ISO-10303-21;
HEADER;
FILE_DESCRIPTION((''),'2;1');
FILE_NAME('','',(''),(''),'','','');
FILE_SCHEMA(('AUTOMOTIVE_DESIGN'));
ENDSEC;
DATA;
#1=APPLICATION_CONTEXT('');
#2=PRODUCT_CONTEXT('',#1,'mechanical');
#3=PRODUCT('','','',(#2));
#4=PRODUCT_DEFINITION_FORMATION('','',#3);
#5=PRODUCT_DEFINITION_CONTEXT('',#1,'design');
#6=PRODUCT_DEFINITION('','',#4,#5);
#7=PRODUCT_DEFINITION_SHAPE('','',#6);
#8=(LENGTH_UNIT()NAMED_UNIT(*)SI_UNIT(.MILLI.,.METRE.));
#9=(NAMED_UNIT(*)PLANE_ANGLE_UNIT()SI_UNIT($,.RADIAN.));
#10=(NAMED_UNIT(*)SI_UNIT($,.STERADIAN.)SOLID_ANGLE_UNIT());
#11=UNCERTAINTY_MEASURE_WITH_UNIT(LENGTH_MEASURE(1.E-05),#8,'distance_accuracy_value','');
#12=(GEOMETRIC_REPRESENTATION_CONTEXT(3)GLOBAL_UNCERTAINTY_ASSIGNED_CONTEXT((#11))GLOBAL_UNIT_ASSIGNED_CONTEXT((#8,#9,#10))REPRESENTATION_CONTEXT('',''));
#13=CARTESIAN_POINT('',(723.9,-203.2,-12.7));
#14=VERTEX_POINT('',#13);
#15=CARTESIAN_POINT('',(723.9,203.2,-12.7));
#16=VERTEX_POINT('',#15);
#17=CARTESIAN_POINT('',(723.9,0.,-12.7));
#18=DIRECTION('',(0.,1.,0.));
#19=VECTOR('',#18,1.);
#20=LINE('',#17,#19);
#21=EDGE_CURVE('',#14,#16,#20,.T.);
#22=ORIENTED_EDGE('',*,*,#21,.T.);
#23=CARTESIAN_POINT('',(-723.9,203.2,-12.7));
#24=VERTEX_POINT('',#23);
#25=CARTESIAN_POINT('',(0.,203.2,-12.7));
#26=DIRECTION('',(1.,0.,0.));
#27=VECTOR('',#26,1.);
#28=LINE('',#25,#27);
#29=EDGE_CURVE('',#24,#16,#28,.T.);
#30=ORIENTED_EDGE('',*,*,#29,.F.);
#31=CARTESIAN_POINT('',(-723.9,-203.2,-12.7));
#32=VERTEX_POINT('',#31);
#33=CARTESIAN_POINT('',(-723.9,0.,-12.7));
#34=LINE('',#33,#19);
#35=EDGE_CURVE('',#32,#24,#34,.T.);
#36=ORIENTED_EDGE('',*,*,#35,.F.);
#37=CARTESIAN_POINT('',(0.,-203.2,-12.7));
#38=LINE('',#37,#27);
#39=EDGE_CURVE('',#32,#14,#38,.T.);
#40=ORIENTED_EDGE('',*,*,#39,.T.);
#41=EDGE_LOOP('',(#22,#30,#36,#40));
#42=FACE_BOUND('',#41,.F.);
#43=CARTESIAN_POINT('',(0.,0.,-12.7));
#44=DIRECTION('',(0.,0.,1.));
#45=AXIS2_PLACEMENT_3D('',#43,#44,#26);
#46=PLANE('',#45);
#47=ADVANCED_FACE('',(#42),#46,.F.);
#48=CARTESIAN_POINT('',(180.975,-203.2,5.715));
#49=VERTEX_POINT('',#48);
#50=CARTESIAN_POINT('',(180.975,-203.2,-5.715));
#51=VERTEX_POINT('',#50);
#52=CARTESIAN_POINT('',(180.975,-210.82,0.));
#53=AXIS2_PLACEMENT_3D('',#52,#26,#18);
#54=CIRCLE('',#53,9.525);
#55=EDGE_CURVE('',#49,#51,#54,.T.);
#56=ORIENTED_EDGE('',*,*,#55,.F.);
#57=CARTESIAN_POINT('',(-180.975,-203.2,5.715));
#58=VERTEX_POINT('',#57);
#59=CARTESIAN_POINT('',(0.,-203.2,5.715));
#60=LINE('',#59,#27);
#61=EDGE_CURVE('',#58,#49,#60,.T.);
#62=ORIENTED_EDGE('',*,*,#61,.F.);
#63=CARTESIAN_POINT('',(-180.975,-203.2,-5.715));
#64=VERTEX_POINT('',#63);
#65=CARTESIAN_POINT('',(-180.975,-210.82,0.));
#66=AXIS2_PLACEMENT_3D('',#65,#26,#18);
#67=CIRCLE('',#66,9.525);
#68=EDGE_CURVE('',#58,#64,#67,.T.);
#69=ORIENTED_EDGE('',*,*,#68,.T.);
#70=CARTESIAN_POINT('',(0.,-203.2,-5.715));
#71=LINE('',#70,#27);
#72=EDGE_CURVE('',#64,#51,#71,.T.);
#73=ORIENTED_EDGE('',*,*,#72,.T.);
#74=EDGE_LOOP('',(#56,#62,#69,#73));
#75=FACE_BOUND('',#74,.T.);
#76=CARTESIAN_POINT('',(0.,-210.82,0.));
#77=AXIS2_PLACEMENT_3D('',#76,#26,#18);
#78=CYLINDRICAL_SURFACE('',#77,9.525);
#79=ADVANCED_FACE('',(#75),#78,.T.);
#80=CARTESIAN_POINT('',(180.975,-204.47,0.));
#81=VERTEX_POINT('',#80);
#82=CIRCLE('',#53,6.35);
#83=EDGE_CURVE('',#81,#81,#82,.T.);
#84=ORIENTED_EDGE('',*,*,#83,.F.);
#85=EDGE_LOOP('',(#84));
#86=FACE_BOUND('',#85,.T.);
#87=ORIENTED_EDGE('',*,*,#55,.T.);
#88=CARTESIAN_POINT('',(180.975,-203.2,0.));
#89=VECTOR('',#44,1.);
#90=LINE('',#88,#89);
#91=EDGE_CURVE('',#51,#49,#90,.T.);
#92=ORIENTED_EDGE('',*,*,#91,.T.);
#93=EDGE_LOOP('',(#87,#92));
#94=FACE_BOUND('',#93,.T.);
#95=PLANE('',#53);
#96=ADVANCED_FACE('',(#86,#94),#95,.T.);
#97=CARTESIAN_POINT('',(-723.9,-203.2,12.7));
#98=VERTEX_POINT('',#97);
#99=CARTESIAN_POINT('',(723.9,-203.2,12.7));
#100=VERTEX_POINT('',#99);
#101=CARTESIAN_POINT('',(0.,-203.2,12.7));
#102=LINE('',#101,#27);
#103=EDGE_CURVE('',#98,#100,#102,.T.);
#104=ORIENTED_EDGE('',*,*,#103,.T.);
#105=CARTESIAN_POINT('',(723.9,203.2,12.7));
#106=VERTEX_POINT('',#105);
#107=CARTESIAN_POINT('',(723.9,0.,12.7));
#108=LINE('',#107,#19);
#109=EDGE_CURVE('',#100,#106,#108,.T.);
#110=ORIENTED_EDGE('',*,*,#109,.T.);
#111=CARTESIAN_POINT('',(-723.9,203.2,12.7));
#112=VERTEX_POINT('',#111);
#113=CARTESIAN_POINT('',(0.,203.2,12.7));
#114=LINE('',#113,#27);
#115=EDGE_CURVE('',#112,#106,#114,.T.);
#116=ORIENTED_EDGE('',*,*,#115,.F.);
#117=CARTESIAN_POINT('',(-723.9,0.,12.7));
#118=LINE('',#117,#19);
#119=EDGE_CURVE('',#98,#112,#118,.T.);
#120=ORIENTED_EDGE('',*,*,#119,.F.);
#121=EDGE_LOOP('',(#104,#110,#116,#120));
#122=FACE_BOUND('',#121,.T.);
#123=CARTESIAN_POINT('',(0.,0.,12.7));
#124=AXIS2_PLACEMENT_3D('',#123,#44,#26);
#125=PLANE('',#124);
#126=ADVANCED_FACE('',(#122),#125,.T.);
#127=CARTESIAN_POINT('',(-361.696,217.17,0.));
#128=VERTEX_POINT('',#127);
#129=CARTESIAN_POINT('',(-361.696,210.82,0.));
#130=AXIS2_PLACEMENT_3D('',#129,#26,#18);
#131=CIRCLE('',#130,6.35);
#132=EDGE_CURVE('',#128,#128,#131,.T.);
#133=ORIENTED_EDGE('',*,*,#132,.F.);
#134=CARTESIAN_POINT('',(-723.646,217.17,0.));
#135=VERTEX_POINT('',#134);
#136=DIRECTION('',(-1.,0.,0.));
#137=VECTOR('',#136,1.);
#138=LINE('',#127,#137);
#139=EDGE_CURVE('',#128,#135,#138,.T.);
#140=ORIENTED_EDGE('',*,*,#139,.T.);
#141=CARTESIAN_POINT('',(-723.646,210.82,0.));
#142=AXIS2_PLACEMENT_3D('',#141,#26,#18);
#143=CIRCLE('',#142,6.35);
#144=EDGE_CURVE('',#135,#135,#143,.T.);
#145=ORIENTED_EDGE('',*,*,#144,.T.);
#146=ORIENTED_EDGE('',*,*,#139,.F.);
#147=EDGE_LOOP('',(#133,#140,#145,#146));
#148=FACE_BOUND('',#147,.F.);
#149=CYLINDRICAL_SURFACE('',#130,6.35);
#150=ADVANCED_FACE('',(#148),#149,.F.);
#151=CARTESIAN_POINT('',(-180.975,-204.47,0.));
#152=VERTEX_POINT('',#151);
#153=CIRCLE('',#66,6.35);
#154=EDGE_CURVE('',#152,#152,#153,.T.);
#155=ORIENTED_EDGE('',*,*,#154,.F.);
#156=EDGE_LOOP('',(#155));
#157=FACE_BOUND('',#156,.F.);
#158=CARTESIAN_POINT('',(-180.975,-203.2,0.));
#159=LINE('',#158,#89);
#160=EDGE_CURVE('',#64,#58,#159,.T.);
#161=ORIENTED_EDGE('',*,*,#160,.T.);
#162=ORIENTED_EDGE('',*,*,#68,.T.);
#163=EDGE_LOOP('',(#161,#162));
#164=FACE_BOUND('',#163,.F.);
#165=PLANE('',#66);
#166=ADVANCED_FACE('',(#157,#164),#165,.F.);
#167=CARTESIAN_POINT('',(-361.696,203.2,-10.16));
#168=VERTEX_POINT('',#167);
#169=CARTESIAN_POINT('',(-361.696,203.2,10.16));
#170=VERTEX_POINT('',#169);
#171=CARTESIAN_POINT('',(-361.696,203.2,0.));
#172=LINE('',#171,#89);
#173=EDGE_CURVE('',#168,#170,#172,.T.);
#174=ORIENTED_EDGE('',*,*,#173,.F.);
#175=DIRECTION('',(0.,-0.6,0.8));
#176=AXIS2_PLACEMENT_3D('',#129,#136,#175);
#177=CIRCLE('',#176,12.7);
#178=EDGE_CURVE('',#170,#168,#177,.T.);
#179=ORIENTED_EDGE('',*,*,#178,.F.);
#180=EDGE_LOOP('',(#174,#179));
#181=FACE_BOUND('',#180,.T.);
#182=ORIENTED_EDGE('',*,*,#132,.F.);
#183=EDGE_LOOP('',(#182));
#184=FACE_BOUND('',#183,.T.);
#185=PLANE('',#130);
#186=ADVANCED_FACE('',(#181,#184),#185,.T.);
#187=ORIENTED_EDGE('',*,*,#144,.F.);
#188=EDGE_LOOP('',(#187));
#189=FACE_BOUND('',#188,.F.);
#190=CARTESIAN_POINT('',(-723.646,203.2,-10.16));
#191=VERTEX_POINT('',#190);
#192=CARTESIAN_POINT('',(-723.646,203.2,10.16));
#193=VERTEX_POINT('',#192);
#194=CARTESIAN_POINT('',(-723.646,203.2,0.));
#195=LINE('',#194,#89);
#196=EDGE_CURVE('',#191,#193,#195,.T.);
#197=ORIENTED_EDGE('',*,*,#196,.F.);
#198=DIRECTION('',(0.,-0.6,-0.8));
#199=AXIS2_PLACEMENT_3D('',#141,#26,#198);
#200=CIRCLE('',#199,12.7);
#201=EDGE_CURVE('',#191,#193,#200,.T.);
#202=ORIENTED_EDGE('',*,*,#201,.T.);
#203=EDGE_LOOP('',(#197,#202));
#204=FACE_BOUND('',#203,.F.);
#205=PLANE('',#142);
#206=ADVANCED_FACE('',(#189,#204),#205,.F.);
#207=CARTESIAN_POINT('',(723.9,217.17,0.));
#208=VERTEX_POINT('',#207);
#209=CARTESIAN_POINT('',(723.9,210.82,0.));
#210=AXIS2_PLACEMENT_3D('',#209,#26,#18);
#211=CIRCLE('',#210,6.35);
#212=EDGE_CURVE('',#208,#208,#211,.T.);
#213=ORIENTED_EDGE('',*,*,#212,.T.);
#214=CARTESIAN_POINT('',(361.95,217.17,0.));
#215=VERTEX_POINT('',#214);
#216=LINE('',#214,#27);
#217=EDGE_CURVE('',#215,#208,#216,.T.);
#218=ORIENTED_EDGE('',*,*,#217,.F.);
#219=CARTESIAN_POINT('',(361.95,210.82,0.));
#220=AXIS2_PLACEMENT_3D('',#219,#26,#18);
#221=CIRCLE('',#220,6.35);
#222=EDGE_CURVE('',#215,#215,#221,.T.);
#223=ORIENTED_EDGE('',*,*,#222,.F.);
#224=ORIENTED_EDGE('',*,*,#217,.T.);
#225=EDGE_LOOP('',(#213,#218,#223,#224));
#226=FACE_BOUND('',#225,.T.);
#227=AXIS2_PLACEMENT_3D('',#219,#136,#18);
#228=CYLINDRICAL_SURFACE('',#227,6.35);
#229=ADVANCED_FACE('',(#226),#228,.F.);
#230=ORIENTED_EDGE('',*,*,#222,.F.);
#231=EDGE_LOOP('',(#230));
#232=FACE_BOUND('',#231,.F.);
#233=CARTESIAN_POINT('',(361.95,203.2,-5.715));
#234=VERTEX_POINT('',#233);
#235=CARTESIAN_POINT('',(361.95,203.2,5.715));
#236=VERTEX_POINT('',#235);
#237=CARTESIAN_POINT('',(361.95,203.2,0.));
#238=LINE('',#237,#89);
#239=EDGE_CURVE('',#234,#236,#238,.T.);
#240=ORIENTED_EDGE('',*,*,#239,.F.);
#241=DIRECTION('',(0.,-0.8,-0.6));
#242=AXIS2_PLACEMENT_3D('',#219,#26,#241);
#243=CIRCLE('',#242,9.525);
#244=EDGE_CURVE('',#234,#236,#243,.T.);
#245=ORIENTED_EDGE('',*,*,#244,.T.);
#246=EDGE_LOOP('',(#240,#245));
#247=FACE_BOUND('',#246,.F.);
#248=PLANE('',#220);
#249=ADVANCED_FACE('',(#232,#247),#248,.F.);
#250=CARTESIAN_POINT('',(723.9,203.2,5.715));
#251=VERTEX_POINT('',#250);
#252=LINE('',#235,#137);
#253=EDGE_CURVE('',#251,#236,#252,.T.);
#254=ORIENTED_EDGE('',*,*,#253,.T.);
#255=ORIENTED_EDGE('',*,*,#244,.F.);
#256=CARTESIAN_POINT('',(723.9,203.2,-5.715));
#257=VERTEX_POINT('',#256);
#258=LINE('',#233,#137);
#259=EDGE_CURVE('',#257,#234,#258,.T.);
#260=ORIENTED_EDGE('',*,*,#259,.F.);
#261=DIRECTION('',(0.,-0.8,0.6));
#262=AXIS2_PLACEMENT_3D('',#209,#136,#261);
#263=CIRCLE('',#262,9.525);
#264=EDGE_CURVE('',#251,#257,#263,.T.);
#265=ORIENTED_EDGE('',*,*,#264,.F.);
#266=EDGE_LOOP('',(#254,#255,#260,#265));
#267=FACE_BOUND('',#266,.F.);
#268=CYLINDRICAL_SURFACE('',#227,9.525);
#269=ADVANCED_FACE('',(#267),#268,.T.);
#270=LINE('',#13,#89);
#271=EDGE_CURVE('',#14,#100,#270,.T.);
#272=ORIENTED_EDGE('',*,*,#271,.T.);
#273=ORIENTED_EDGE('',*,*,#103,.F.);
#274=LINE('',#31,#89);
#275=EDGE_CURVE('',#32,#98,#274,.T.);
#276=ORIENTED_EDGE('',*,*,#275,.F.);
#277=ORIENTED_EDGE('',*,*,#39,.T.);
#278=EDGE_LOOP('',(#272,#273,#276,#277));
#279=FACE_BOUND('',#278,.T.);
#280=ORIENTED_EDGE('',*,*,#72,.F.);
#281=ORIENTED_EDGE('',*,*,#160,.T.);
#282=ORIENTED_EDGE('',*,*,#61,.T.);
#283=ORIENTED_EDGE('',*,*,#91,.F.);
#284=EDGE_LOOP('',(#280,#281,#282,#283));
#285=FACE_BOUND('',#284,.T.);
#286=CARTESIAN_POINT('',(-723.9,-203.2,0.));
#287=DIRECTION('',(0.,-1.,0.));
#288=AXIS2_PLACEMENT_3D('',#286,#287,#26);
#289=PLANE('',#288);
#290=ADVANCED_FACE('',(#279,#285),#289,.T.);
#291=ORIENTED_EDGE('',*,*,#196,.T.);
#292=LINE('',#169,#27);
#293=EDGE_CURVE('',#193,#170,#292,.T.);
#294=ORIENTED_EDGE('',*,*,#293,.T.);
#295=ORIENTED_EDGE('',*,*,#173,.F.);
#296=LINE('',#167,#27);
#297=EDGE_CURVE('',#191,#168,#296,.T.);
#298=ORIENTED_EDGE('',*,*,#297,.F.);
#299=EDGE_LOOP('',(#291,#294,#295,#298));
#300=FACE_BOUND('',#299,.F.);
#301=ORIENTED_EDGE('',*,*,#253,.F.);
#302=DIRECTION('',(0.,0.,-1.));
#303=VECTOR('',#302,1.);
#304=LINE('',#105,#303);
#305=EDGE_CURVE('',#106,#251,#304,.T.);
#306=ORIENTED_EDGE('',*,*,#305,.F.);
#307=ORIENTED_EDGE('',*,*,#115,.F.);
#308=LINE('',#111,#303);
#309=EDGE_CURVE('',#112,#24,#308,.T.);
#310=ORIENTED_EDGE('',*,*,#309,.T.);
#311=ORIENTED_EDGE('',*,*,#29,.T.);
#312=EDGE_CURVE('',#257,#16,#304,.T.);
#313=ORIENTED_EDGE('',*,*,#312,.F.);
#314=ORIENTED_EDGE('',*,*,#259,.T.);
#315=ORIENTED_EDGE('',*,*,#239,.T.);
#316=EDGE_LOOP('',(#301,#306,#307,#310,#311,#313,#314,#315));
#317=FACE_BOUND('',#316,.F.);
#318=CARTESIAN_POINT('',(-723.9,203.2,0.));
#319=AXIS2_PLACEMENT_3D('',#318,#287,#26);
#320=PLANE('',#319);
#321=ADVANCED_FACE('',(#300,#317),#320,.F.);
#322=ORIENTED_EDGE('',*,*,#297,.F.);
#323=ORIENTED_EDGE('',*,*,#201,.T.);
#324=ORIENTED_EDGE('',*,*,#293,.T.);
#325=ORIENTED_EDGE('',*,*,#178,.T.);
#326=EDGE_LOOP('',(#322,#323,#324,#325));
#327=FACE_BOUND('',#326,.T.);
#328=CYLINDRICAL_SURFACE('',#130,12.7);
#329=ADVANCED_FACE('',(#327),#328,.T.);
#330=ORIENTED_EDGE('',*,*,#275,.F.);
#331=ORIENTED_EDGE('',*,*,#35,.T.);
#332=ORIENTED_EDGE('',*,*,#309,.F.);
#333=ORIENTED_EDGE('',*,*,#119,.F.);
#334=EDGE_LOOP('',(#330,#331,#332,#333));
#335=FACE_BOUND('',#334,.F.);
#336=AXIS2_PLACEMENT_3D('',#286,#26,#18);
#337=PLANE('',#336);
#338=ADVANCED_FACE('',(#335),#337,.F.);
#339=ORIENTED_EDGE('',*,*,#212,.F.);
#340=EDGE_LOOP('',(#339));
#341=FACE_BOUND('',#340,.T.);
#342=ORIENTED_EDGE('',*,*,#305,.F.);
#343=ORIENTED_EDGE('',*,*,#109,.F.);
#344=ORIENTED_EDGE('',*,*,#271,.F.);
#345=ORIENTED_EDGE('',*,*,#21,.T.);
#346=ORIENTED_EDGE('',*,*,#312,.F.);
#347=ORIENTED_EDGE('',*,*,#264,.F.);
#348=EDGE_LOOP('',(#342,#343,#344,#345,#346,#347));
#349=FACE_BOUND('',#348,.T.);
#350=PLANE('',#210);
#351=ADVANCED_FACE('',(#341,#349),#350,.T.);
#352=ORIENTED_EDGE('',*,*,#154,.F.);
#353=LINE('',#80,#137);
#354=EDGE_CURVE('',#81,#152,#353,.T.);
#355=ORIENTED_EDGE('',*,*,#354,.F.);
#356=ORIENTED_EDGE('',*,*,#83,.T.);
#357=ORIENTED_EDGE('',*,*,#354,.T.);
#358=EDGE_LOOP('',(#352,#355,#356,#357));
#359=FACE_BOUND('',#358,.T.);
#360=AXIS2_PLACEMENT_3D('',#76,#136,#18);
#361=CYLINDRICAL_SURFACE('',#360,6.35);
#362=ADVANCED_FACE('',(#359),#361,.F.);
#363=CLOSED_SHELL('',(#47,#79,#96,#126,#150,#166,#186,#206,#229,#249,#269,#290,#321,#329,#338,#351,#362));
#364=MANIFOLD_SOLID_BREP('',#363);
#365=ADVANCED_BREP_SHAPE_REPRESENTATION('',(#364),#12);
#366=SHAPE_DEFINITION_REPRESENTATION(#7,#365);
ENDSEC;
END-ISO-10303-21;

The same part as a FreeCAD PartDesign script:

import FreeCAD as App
import Part
import Sketcher
Q = App.Units.Quantity


def add_polygon(sketch, points):
    """Adds a closed chain of lines whose ends are joined by coincident constraints."""
    first, n = sketch.GeometryCount, len(points)
    for a, b in zip(points, points[1:] + points[:1]):
        sketch.addGeometry(Part.LineSegment(App.Vector(*a, 0), App.Vector(*b, 0)), False)
    for i in range(n):
        sketch.addConstraint(Sketcher.Constraint("Coincident", first + i, 2, first + (i + 1) % n, 1))

doc = App.newDocument("Part")
body = doc.addObject("PartDesign::Body", "Body")

# Sketch on XY plane
sketch1 = doc.addObject("Sketcher::SketchObject", "Sketch")
body.addObject(sketch1)
sketch1.AttachmentSupport = (doc.XY_Plane, [""])
sketch1.MapMode = "FlatFace"
add_polygon(sketch1, [(-723.9, 203.2), (-723.9, -203.2), (723.9, -203.2), (723.9, 203.2)])  # lines 0-3
sketch1.addConstraint([
    Sketcher.Constraint("Vertical", 0),
    Sketcher.Constraint("Horizontal", 1),
    Sketcher.Constraint("Vertical", 2),
    Sketcher.Constraint("Horizontal", 3),
    Sketcher.Constraint("Symmetric", 0, 2, 2, 2, -1, 1),
    Sketcher.Constraint("DistanceX", 1, 1, 1, 2, Q("57 in")),
    Sketcher.Constraint("DistanceY", 0, 2, 0, 1, Q("16 in")),
])
pad1 = doc.addObject("PartDesign::Pad", "Pad")
body.addObject(pad1)
pad1.Profile = sketch1
pad1.Length = Q("1 in")
pad1.Midplane = True

# Sketch on YZ plane
sketch2 = doc.addObject("Sketcher::SketchObject", "Sketch001")
body.addObject(sketch2)
sketch2.AttachmentSupport = (doc.YZ_Plane, [""])
sketch2.MapMode = "FlatFace"
sketch2.addGeometry([
    Part.Circle(App.Vector(-210.82, 0, 0), App.Vector(0, 0, 1), 9.525),
    Part.Circle(App.Vector(-210.82, 0, 0), App.Vector(0, 0, 1), 6.35),
], False)
sketch2.addConstraint([
    Sketcher.Constraint("Coincident", 1, 3, 0, 3),
    Sketcher.Constraint("PointOnObject", 0, 3, -1),
    Sketcher.Constraint("Diameter", 1, Q("0.5 in")),
    Sketcher.Constraint("Diameter", 0, Q("0.75 in")),
    Sketcher.Constraint("DistanceX", 0, 3, -1, 1, Q("8.3 in")),
])
pad2 = doc.addObject("PartDesign::Pad", "Pad001")
body.addObject(pad2)
pad2.Profile = sketch2
pad2.Length = Q("14.25 in")
pad2.Midplane = True

# Sketch on YZ plane
sketch3 = doc.addObject("Sketcher::SketchObject", "Sketch002")
body.addObject(sketch3)
sketch3.AttachmentSupport = (doc.YZ_Plane, [""])
sketch3.MapMode = "FlatFace"
sketch3.AttachmentOffset = App.Placement(App.Vector(0, 0, 14.25 * 25.4), App.Rotation())
sketch3.addGeometry([
    Part.Circle(App.Vector(210.82, 0, 0), App.Vector(0, 0, 1), 9.525),
    Part.Circle(App.Vector(210.82, 0, 0), App.Vector(0, 0, 1), 6.35),
], False)
sketch3.addConstraint([
    Sketcher.Constraint("Coincident", 1, 3, 0, 3),
    Sketcher.Constraint("PointOnObject", 0, 3, -1),
    Sketcher.Constraint("Diameter", 1, Q("0.5 in")),
    Sketcher.Constraint("Diameter", 0, Q("0.75 in")),
    Sketcher.Constraint("DistanceX", -1, 1, 0, 3, Q("8.3 in")),
])
pad3 = doc.addObject("PartDesign::Pad", "Pad002")
body.addObject(pad3)
pad3.Profile = sketch3
pad3.Length = Q("14.25 in")

# Sketch on YZ plane
sketch4 = doc.addObject("Sketcher::SketchObject", "Sketch003")
body.addObject(sketch4)
sketch4.AttachmentSupport = (doc.YZ_Plane, [""])
sketch4.MapMode = "FlatFace"
sketch4.AttachmentOffset = App.Placement(App.Vector(0, 0, -14.24 * 25.4), App.Rotation())
sketch4.addGeometry([
    Part.Circle(App.Vector(210.82, 0, 0), App.Vector(0, 0, 1), 12.7),
    Part.Circle(App.Vector(210.82, 0, 0), App.Vector(0, 0, 1), 6.35),
], False)
sketch4.addConstraint([
    Sketcher.Constraint("Coincident", 1, 3, 0, 3),
    Sketcher.Constraint("PointOnObject", 0, 3, -1),
    Sketcher.Constraint("Diameter", 0, Q("1 in")),
    Sketcher.Constraint("Diameter", 1, Q("0.5 in")),
    Sketcher.Constraint("DistanceX", -1, 1, 0, 3, Q("8.3 in")),
])
pad4 = doc.addObject("PartDesign::Pad", "Pad003")
body.addObject(pad4)
pad4.Profile = sketch4
pad4.Length = Q("14.25 in")
pad4.Reversed = True

doc.recompute()
